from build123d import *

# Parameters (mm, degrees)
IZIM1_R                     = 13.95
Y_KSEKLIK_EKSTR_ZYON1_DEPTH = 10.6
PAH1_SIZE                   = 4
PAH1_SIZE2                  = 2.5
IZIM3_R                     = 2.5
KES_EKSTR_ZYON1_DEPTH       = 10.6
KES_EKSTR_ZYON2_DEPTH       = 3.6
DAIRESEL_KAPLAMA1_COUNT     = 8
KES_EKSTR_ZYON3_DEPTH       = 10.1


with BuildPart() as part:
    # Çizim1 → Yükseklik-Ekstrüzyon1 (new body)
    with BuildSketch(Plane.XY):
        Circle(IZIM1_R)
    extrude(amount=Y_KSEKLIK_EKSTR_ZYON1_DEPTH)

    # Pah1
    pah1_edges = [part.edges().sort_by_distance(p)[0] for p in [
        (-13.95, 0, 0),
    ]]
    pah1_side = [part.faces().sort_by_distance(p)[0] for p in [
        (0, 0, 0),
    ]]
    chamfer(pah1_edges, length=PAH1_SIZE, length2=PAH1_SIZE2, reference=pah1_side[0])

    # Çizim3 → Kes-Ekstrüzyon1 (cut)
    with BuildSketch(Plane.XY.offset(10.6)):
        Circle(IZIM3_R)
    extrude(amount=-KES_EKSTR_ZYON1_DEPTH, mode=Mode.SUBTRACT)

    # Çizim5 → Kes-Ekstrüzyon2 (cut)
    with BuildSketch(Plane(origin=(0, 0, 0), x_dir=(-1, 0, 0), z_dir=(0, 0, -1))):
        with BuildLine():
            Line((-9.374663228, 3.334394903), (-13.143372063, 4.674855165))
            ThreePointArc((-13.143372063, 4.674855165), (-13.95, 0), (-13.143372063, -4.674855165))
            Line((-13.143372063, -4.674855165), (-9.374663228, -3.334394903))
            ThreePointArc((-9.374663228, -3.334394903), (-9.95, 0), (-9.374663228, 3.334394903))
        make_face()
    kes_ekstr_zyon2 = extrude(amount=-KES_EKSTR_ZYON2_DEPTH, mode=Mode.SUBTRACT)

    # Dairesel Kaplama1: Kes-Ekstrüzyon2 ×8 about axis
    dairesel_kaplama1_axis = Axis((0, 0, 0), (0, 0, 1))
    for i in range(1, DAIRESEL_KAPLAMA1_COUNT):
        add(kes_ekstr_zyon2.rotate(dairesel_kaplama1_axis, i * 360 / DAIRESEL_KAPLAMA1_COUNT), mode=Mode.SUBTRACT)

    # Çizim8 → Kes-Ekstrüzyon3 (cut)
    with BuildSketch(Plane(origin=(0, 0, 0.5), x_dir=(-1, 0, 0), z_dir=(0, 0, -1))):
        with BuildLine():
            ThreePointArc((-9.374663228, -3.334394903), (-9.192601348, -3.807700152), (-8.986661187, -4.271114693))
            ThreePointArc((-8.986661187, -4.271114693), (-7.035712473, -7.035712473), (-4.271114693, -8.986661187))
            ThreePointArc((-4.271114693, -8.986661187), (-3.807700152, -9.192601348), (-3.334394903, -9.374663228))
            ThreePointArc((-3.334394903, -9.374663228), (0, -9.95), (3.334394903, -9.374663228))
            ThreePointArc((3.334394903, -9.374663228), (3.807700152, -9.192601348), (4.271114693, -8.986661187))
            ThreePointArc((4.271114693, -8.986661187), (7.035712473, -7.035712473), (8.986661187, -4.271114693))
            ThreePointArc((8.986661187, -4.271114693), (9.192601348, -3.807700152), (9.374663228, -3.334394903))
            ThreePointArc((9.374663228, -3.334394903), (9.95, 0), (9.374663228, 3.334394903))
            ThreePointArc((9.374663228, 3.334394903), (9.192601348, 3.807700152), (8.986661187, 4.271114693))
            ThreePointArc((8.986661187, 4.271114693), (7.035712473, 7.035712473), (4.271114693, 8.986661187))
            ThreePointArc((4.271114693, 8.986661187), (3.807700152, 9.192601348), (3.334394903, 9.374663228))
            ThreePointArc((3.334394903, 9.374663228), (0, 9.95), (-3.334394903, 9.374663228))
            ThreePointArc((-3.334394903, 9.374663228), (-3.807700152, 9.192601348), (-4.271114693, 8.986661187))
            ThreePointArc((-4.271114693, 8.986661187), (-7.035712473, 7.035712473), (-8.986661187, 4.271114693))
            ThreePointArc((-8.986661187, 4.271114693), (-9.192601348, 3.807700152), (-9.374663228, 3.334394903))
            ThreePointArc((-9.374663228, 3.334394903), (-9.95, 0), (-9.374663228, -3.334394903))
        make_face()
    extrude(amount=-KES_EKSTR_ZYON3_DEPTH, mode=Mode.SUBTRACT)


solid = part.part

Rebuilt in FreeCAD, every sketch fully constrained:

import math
import FreeCAD as App
import Part
import Sketcher

V = App.Vector


def edges_at(feature, points):
    """Names of the edges that pass closest to the given points."""
    edges = feature.Shape.Edges
    near = lambda p: min(range(len(edges)), key=lambda i: edges[i].distToShape(Part.Vertex(*p))[0])
    return sorted({f"Edge{near(p) + 1}" for p in points})

doc = App.newDocument("Part")
body = doc.addObject("PartDesign::Body", "Body")

sketch1 = doc.addObject("Sketcher::SketchObject", "Sketch")
body.addObject(sketch1)
sketch1.AttachmentSupport = (doc.XY_Plane, [""])
sketch1.MapMode = "FlatFace"
sketch1.addGeometry(Part.Circle(V(0, 0, 0), V(0, 0, 1), 13.95), False)
sketch1.addConstraint([
    Sketcher.Constraint("Coincident", 0, 3, -1, 1),
    Sketcher.Constraint("Diameter", 0, 27.9),
])
pad1 = doc.addObject("PartDesign::Pad", "Pad")
body.addObject(pad1)
pad1.Profile = sketch1
pad1.Length = 10.6
doc.recompute()

chamfer = doc.addObject("PartDesign::Chamfer", "Chamfer")
body.addObject(chamfer)
chamfer.Base = (pad1, edges_at(pad1, [(-13.95, 0, 0)]))
chamfer.ChamferType = "Two distances"
chamfer.Size = 4
chamfer.Size2 = 2.5
chamfer.FlipDirection = True

sketch2 = doc.addObject("Sketcher::SketchObject", "Sketch001")
body.addObject(sketch2)
sketch2.AttachmentSupport = (doc.XY_Plane, [""])
sketch2.MapMode = "FlatFace"
sketch2.AttachmentOffset = App.Placement(V(0, 0, 10.6), App.Rotation())
sketch2.addGeometry(Part.Circle(V(0, 0, 0), V(0, 0, 1), 2.5), False)
sketch2.addConstraint([
    Sketcher.Constraint("Coincident", 0, 3, -1, 1),
    Sketcher.Constraint("Diameter", 0, 5.0),
])
pocket1 = doc.addObject("PartDesign::Pocket", "Pocket")
body.addObject(pocket1)
pocket1.Profile = sketch2
pocket1.Length = 10.6

sketch3 = doc.addObject("Sketcher::SketchObject", "Sketch002")
body.addObject(sketch3)
sketch3.AttachmentSupport = (doc.XY_Plane, [""])
sketch3.MapMode = "FlatFace"
sketch3.addGeometry([
    Part.LineSegment(V(9.374663, 3.334395, 0), V(13.143372, 4.674855, 0)),
    Part.ArcOfCircle(Part.Circle(V(0, 0, 0), V(0, 0, 1), 13.95), math.radians(-19.579535), math.radians(19.579535)),
    Part.LineSegment(V(13.143372, -4.674855, 0), V(9.374663, -3.334395, 0)),
    Part.ArcOfCircle(Part.Circle(V(0, 0, 0), V(0, 0, 1), 9.95), math.radians(-19.579535), math.radians(19.579535)),
], False)
sketch3.addConstraint([
    Sketcher.Constraint("Coincident", 0, 2, 1, 2),
    Sketcher.Constraint("Coincident", 1, 1, 2, 1),
    Sketcher.Constraint("Coincident", 2, 2, 3, 1),
    Sketcher.Constraint("Coincident", 3, 2, 0, 1),
    Sketcher.Constraint("Coincident", 1, 3, -1, 1),
    Sketcher.Constraint("Coincident", 3, 3, -1, 1),
    Sketcher.Constraint("Vertical", 0, 2, 1, 1),
    Sketcher.Constraint("Vertical", 2, 2, 3, 2),
    Sketcher.Constraint("Radius", 1, 13.95),
    Sketcher.Constraint("Radius", 3, 9.95),
    Sketcher.Constraint("DistanceY", 1, 1, 0, 2, 9.34971),
    Sketcher.Constraint("DistanceX", 2, 2, 1, 1, 3.768709),
])
pocket2 = doc.addObject("PartDesign::Pocket", "Pocket001")
body.addObject(pocket2)
pocket2.Profile = sketch3
pocket2.Length = 3.6
pocket2.Reversed = True
doc.recompute()

polarpattern = doc.addObject("PartDesign::PolarPattern", "PolarPattern")
body.addObject(polarpattern)
polarpattern.Originals = [pocket2]
polarpattern.Axis = (doc.Z_Axis, [""])
polarpattern.Angle = 360
polarpattern.Occurrences = 8
body.Tip = polarpattern

sketch4 = doc.addObject("Sketcher::SketchObject", "Sketch003")
body.addObject(sketch4)
sketch4.AttachmentSupport = (doc.XY_Plane, [""])
sketch4.MapMode = "FlatFace"
sketch4.AttachmentOffset = App.Placement(V(0, 0, 0.5), App.Rotation())
sketch4.addGeometry([
    Part.ArcOfCircle(Part.Circle(V(-0.000001, 0, 0), V(0, 0, 1), 9.950001), math.radians(-25.420465), math.radians(-19.579535)),
    Part.ArcOfCircle(Part.Circle(V(0, 0, 0), V(0, 0, 1), 9.95), math.radians(-64.579535), math.radians(-25.420465)),
    Part.ArcOfCircle(Part.Circle(V(0, 0.000001, 0), V(0, 0, 1), 9.950001), math.radians(-70.420465), math.radians(-64.579535)),
    Part.ArcOfCircle(Part.Circle(V(0, 0, 0), V(0, 0, 1), 9.95), math.radians(-109.579535), math.radians(-70.420465)),
    Part.ArcOfCircle(Part.Circle(V(0, 0.000001, 0), V(0, 0, 1), 9.950001), math.radians(-115.420465), math.radians(-109.579535)),
    Part.ArcOfCircle(Part.Circle(V(0, 0, 0), V(0, 0, 1), 9.95), math.radians(-154.579535), math.radians(-115.420465)),
    Part.ArcOfCircle(Part.Circle(V(0.000001, 0, 0), V(0, 0, 1), 9.950001), math.radians(-160.420465), math.radians(-154.579535)),
    Part.ArcOfCircle(Part.Circle(V(0, 0, 0), V(0, 0, 1), 9.95), math.radians(160.420465), math.radians(199.579535)),
    Part.ArcOfCircle(Part.Circle(V(0.000001, 0, 0), V(0, 0, 1), 9.950001), math.radians(154.579535), math.radians(160.420465)),
    Part.ArcOfCircle(Part.Circle(V(0, 0, 0), V(0, 0, 1), 9.95), math.radians(115.420465), math.radians(154.579535)),
    Part.ArcOfCircle(Part.Circle(V(0, -0.000001, 0), V(0, 0, 1), 9.950001), math.radians(109.579535), math.radians(115.420465)),
    Part.ArcOfCircle(Part.Circle(V(0, 0, 0), V(0, 0, 1), 9.95), math.radians(70.420465), math.radians(109.579535)),
    Part.ArcOfCircle(Part.Circle(V(0, -0.000001, 0), V(0, 0, 1), 9.950001), math.radians(64.579535), math.radians(70.420465)),
    Part.ArcOfCircle(Part.Circle(V(0, 0, 0), V(0, 0, 1), 9.95), math.radians(25.420465), math.radians(64.579535)),
    Part.ArcOfCircle(Part.Circle(V(-0.000001, 0, 0), V(0, 0, 1), 9.950001), math.radians(19.579535), math.radians(25.420465)),
    Part.ArcOfCircle(Part.Circle(V(0, 0, 0), V(0, 0, 1), 9.95), math.radians(-19.579535), math.radians(19.579535)),
], False)
sketch4.addConstraint([
    Sketcher.Constraint("Tangent", 0, 1, 1, 2),
    Sketcher.Constraint("Tangent", 1, 1, 2, 2),
    Sketcher.Constraint("Tangent", 2, 1, 3, 2),
    Sketcher.Constraint("Tangent", 3, 1, 4, 2),
    Sketcher.Constraint("Tangent", 4, 1, 5, 2),
    Sketcher.Constraint("Tangent", 5, 1, 6, 2),
    Sketcher.Constraint("Tangent", 6, 1, 7, 2),
    Sketcher.Constraint("Tangent", 7, 1, 8, 2),
    Sketcher.Constraint("Tangent", 8, 1, 9, 2),
    Sketcher.Constraint("Tangent", 9, 1, 10, 2),
    Sketcher.Constraint("Tangent", 10, 1, 11, 2),
    Sketcher.Constraint("Tangent", 11, 1, 12, 2),
    Sketcher.Constraint("Tangent", 12, 1, 13, 2),
    Sketcher.Constraint("Tangent", 13, 1, 14, 2),
    Sketcher.Constraint("Tangent", 14, 1, 15, 2),
    Sketcher.Constraint("Tangent", 15, 1, 0, 2),
    Sketcher.Constraint("Coincident", 0, 3, -1, 1),
    Sketcher.Constraint("Coincident", 2, 3, -1, 1),
    Sketcher.Constraint("Coincident", 4, 3, -1, 1),
    Sketcher.Constraint("Coincident", 6, 3, -1, 1),
    Sketcher.Constraint("Coincident", 8, 3, -1, 1),
    Sketcher.Constraint("Coincident", 10, 3, -1, 1),
    Sketcher.Constraint("Coincident", 12, 3, -1, 1),
    Sketcher.Constraint("Equal", 12, 13),
    Sketcher.Constraint("Horizontal", 2, 1, 3, 1),
    Sketcher.Constraint("Horizontal", 1, 1, 4, 1),
    Sketcher.Constraint("Horizontal", 0, 1, 5, 1),
    Sketcher.Constraint("Horizontal", 10, 1, 11, 1),
    Sketcher.Constraint("Horizontal", 9, 1, 12, 1),
    Sketcher.Constraint("Horizontal", 8, 1, 13, 1),
    Sketcher.Constraint("Horizontal", 7, 1, 14, 1),
    Sketcher.Constraint("Horizontal", 6, 1, 15, 1),
    Sketcher.Constraint("Vertical", 6, 1, 7, 1),
    Sketcher.Constraint("Vertical", 5, 1, 8, 1),
    Sketcher.Constraint("Vertical", 4, 1, 9, 1),
    Sketcher.Constraint("Vertical", 3, 1, 10, 1),
    Sketcher.Constraint("Radius", 0, 9.950001),
    Sketcher.Constraint("DistanceX", -1, 1, 0, 1, 8.986661),
    Sketcher.Constraint("DistanceY", 1, 1, -1, 1, 8.986661),
    Sketcher.Constraint("DistanceX", 2, 1, 1, 1, 0.93672),
    Sketcher.Constraint("DistanceY", 5, 1, 6, 1, 0.93672),
])
pocket3 = doc.addObject("PartDesign::Pocket", "Pocket002")
body.addObject(pocket3)
pocket3.Profile = sketch4
pocket3.Length = 10.1
pocket3.Reversed = True

doc.recompute()
